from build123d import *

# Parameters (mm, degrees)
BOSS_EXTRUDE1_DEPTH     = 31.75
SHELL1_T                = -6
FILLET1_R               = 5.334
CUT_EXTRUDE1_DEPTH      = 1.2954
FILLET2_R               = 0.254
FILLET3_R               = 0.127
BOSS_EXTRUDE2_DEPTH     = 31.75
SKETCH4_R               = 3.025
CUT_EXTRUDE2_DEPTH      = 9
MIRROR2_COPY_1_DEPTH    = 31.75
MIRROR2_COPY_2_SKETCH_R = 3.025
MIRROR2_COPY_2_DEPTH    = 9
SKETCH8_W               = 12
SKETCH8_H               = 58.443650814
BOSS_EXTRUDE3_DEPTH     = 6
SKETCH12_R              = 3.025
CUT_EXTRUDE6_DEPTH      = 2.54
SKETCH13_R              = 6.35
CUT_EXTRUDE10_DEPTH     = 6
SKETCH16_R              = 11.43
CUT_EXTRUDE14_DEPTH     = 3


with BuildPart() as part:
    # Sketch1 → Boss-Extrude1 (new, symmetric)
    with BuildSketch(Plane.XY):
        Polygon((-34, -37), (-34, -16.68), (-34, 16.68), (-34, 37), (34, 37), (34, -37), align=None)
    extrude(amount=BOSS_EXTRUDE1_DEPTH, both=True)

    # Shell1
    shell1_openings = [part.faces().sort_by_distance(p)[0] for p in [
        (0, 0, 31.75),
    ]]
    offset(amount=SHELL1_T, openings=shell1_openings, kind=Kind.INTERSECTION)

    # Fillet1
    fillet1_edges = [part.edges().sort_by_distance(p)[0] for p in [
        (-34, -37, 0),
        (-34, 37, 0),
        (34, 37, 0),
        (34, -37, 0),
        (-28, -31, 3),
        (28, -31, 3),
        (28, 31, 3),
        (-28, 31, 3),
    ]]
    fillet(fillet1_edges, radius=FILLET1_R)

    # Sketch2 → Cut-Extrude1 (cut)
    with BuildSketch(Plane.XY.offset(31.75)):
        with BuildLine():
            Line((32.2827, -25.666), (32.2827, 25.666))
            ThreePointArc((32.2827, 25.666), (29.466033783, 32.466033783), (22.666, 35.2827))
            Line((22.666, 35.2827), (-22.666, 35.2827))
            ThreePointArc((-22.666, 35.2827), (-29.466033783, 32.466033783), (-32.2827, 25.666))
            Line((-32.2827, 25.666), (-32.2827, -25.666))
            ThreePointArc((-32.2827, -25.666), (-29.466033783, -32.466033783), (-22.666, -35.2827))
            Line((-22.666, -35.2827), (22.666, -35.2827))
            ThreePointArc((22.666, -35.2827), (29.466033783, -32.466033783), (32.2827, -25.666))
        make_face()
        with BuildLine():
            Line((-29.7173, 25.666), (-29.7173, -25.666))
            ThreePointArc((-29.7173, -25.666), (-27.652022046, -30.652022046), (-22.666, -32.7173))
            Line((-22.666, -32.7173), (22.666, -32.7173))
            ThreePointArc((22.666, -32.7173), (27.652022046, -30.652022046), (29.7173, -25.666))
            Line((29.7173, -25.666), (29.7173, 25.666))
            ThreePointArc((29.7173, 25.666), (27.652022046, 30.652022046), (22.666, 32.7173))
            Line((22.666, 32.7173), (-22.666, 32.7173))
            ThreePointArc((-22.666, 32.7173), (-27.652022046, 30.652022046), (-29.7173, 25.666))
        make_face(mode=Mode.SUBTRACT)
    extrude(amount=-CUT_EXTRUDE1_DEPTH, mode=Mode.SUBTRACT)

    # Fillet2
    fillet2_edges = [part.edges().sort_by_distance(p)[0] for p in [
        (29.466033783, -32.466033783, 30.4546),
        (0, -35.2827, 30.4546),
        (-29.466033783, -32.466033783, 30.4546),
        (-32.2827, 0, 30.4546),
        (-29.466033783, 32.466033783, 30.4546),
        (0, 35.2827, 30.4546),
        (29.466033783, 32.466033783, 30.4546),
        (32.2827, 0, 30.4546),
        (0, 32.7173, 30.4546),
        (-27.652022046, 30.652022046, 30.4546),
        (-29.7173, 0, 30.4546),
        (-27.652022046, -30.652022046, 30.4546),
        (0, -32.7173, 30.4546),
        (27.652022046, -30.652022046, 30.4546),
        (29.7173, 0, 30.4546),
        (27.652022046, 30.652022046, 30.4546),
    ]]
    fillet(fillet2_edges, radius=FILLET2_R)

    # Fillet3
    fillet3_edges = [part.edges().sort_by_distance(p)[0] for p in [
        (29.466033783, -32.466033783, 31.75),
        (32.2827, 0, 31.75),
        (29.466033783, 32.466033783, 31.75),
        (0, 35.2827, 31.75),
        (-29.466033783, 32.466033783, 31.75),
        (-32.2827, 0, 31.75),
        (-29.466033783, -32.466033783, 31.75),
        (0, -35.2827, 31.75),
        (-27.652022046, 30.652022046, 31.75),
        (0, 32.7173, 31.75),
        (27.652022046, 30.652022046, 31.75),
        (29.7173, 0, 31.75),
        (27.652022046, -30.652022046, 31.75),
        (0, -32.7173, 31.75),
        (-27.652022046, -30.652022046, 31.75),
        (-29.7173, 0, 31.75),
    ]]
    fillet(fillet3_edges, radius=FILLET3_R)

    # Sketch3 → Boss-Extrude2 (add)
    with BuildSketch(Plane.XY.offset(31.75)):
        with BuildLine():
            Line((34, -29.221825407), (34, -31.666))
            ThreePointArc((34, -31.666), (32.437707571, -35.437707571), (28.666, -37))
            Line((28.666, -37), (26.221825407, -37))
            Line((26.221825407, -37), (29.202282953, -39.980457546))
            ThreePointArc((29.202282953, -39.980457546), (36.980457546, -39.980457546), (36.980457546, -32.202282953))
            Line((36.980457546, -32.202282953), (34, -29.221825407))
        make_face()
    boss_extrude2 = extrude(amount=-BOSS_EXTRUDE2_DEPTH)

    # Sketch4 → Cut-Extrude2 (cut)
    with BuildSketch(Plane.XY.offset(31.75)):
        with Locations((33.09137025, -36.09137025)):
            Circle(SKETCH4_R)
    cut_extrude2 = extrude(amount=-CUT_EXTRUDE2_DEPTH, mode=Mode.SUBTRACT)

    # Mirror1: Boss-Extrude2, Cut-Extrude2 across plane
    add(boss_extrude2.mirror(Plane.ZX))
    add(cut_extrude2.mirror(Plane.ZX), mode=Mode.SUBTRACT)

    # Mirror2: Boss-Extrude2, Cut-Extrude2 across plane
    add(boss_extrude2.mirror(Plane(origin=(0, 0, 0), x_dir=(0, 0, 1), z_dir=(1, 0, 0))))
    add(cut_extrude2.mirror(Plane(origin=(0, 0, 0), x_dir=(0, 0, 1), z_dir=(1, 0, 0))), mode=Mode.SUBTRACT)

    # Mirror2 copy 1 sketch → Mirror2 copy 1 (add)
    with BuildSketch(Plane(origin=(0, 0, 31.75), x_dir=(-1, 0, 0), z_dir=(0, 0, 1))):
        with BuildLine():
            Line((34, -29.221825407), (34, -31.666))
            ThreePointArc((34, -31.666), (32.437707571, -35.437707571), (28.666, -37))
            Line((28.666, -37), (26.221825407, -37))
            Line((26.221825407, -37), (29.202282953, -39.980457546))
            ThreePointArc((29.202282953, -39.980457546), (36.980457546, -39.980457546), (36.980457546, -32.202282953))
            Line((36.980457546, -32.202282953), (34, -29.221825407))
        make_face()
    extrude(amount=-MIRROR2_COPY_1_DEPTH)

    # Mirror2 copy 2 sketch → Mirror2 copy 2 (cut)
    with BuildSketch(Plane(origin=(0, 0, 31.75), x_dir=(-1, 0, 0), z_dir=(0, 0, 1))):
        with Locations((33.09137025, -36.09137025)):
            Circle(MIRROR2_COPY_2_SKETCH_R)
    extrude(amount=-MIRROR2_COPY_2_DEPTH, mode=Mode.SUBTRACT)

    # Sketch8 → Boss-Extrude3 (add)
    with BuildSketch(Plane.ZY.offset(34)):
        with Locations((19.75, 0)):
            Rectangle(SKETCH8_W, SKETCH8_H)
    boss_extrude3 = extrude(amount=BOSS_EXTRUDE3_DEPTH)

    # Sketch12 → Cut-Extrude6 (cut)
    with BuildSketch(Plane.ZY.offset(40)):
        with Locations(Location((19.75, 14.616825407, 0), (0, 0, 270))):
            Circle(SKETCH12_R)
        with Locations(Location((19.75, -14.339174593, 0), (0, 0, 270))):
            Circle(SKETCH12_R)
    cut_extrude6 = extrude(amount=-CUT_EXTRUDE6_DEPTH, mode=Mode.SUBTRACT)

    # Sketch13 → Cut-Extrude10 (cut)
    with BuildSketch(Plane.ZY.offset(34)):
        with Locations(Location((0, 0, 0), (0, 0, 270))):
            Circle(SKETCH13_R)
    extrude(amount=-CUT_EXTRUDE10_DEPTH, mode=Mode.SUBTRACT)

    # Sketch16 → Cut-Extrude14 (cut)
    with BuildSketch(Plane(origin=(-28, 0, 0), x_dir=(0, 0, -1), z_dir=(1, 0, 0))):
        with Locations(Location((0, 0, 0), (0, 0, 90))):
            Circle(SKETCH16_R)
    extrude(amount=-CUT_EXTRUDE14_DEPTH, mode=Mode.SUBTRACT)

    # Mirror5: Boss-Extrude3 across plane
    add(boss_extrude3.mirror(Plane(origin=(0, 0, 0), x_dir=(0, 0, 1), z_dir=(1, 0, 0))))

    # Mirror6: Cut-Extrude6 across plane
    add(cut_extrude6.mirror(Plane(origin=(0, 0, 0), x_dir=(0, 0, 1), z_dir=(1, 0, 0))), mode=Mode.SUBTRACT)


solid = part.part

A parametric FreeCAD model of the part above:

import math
import FreeCAD as App
import Part
import Sketcher

V = App.Vector
Q = App.Units.Quantity


def edges_at(feature, points):
    """Names of the edges that pass closest to the given points."""
    edges = feature.Shape.Edges
    near = lambda p: min(range(len(edges)), key=lambda i: edges[i].distToShape(Part.Vertex(*p))[0])
    return sorted({f"Edge{near(p) + 1}" for p in points})


def faces_at(feature, points):
    """Names of the faces that lie closest to the given points."""
    faces = feature.Shape.Faces
    near = lambda p: min(range(len(faces)), key=lambda i: faces[i].distToShape(Part.Vertex(*p))[0])
    return sorted({f"Face{near(p) + 1}" for p in points})


def add_polygon(sketch, points):
    """Adds a closed chain of lines whose ends are joined by coincident constraints."""
    first, n = sketch.GeometryCount, len(points)
    for a, b in zip(points, points[1:] + points[:1]):
        sketch.addGeometry(Part.LineSegment(App.Vector(*a, 0), App.Vector(*b, 0)), False)
    for i in range(n):
        sketch.addConstraint(Sketcher.Constraint("Coincident", first + i, 2, first + (i + 1) % n, 1))

doc = App.newDocument("Part")
body = doc.addObject("PartDesign::Body", "Body")

# Sketch on XY plane
sketch1 = body.newObject("Sketcher::SketchObject", "Sketch")
sketch1.AttachmentSupport = (doc.getObject("XY_Plane"), [""])
sketch1.MapMode = "FlatFace"
add_polygon(sketch1, [(-34, 37), (-34, -37), (34, -37), (34, 37)])  # lines 0-3
sketch1.addConstraint([
    Sketcher.Constraint("Vertical", 0),
    Sketcher.Constraint("Horizontal", 1),
    Sketcher.Constraint("Vertical", 2),
    Sketcher.Constraint("Horizontal", 3),
    Sketcher.Constraint("Symmetric", 0, 2, 2, 2, -1, 1),
    Sketcher.Constraint("DistanceX", 1, 1, 1, 2, 68.0),
    Sketcher.Constraint("DistanceY", 0, 2, 0, 1, 74.0),
])
pad1 = body.newObject("PartDesign::Pad", "Pad")
pad1.Profile = sketch1
pad1.Length = Q("2.5 in")
pad1.Midplane = True
doc.recompute()

thickness = body.newObject("PartDesign::Thickness", "Thickness")
thickness.Base = (pad1, faces_at(pad1, [(0, 0, 31.75)]))
thickness.Value = 6
thickness.Reversed = True
thickness.Join = "Intersection"
doc.recompute()

fillet = body.newObject("PartDesign::Fillet", "Fillet")
fillet.Base = (thickness, edges_at(thickness, [
    (-34, -37, 0),
    (-34, 37, 0),
    (34, 37, 0),
    (34, -37, 0),
    (-28, -31, 3),
    (28, -31, 3),
    (28, 31, 3),
    (-28, 31, 3),
]))
fillet.Radius = Q("0.21 in")

# Sketch on XY plane
sketch2 = body.newObject("Sketcher::SketchObject", "Sketch001")
sketch2.AttachmentSupport = (doc.getObject("XY_Plane"), [""])
sketch2.MapMode = "FlatFace"
sketch2.AttachmentOffset = App.Placement(V(0, 0, 1.25 * 25.4), App.Rotation())
sketch2.addGeometry([
    Part.LineSegment(V(32, -26, 0), V(32, 26, 0)),  # 0
    Part.ArcOfCircle(Part.Circle(V(23, 26, 0), V(0, 0, 1), 10), math.radians(0), math.radians(90)),  # 1
    Part.LineSegment(V(23, 35, 0), V(-23, 35, 0)),  # 2
    Part.ArcOfCircle(Part.Circle(V(-23, 26, 0), V(0, 0, 1), 10), math.radians(90), math.radians(180)),  # 3
    Part.LineSegment(V(-32, 26, 0), V(-32, -26, 0)),  # 4
    Part.ArcOfCircle(Part.Circle(V(-23, -26, 0), V(0, 0, 1), 10), math.radians(180), math.radians(270)),  # 5
    Part.LineSegment(V(-23, -35, 0), V(23, -35, 0)),  # 6
    Part.ArcOfCircle(Part.Circle(V(23, -26, 0), V(0, 0, 1), 10), math.radians(-90), math.radians(0)),  # 7
    Part.LineSegment(V(-30, -26, 0), V(-30, 26, 0)),  # 8
    Part.ArcOfCircle(Part.Circle(V(-23, 26, 0), V(0, 0, 1), 7), math.radians(90), math.radians(180)),  # 9
    Part.LineSegment(V(-23, 33, 0), V(23, 33, 0)),  # 10
    Part.ArcOfCircle(Part.Circle(V(23, 26, 0), V(0, 0, 1), 7), math.radians(0), math.radians(90)),  # 11
    Part.LineSegment(V(30, 26, 0), V(30, -26, 0)),  # 12
    Part.ArcOfCircle(Part.Circle(V(23, -26, 0), V(0, 0, 1), 7), math.radians(-90), math.radians(0)),  # 13
    Part.LineSegment(V(23, -33, 0), V(-23, -33, 0)),  # 14
    Part.ArcOfCircle(Part.Circle(V(-23, -26, 0), V(0, 0, 1), 7), math.radians(-180), math.radians(-90)),  # 15
], False)
sketch2.addConstraint([
    Sketcher.Constraint("Tangent", 0, 2, 1, 1),
    Sketcher.Constraint("Tangent", 1, 2, 2, 1),
    Sketcher.Constraint("Tangent", 2, 2, 3, 1),
    Sketcher.Constraint("Tangent", 3, 2, 4, 1),
    Sketcher.Constraint("Tangent", 4, 2, 5, 1),
    Sketcher.Constraint("Tangent", 5, 2, 6, 1),
    Sketcher.Constraint("Tangent", 6, 2, 7, 1),
    Sketcher.Constraint("Tangent", 7, 2, 0, 1),
    Sketcher.Constraint("Tangent", 8, 2, 9, 2),
    Sketcher.Constraint("Tangent", 9, 1, 10, 1),
    Sketcher.Constraint("Tangent", 10, 2, 11, 2),
    Sketcher.Constraint("Tangent", 11, 1, 12, 1),
    Sketcher.Constraint("Tangent", 12, 2, 13, 2),
    Sketcher.Constraint("Tangent", 13, 1, 14, 1),
    Sketcher.Constraint("Tangent", 14, 2, 15, 2),
    Sketcher.Constraint("Tangent", 15, 1, 8, 1),
    Sketcher.Constraint("Vertical", 0),
    Sketcher.Constraint("Horizontal", 2),
    Sketcher.Constraint("Vertical", 4),
    Sketcher.Constraint("Horizontal", 6),
    Sketcher.Constraint("Vertical", 8),
    Sketcher.Constraint("Horizontal", 10),
    Sketcher.Constraint("Vertical", 12),
    Sketcher.Constraint("Horizontal", 14),
    Sketcher.Constraint("Coincident", 9, 3, 3, 3),
    Sketcher.Constraint("Coincident", 11, 3, 1, 3),
    Sketcher.Constraint("Coincident", 13, 3, 7, 3),
    Sketcher.Constraint("Equal", 1, 3),
    Sketcher.Constraint("Equal", 3, 5),
    Sketcher.Constraint("Equal", 5, 7),
    Sketcher.Constraint("Equal", 13, 15),
    Sketcher.Constraint("Symmetric", 1, 3, 5, 3, -1, 1),
    Sketcher.Constraint("Radius", 1, 9.6167),
    Sketcher.Constraint("Radius", 9, 7.0513),
    Sketcher.Constraint("DistanceX", 2, 2, 2, 1, 45.332),
    Sketcher.Constraint("DistanceY", 0, 1, 0, 2, 51.332),
])
pocket1 = body.newObject("PartDesign::Pocket", "Pocket")
pocket1.Profile = sketch2
pocket1.Length = Q("0.051 in")
doc.recompute()

fillet2 = body.newObject("PartDesign::Fillet", "Fillet001")
fillet2.Base = (pocket1, edges_at(pocket1, [
    (29.466, -32.466, 30.455),
    (0, -35.283, 30.455),
    (-29.466, -32.466, 30.455),
    (-32.283, 0, 30.455),
    (-29.466, 32.466, 30.455),
    (0, 35.283, 30.455),
    (29.466, 32.466, 30.455),
    (32.283, 0, 30.455),
    (0, 32.717, 30.455),
    (-27.652, 30.652, 30.455),
    (-29.717, 0, 30.455),
    (-27.652, -30.652, 30.455),
    (0, -32.717, 30.455),
    (27.652, -30.652, 30.455),
    (29.717, 0, 30.455),
    (27.652, 30.652, 30.455),
]))
fillet2.Radius = Q("0.01 in")
doc.recompute()

fillet3 = body.newObject("PartDesign::Fillet", "Fillet002")
fillet3.Base = (fillet2, edges_at(fillet2, [
    (29.466, -32.466, 31.75),
    (32.283, 0, 31.75),
    (29.466, 32.466, 31.75),
    (0, 35.283, 31.75),
    (-29.466, 32.466, 31.75),
    (-32.283, 0, 31.75),
    (-29.466, -32.466, 31.75),
    (0, -35.283, 31.75),
    (-27.652, 30.652, 31.75),
    (0, 32.717, 31.75),
    (27.652, 30.652, 31.75),
    (29.717, 0, 31.75),
    (27.652, -30.652, 31.75),
    (0, -32.717, 31.75),
    (-27.652, -30.652, 31.75),
    (-29.717, 0, 31.75),
]))
fillet3.Radius = Q("0.005 in")

# Sketch on XY plane
sketch3 = body.newObject("Sketcher::SketchObject", "Sketch002")
sketch3.AttachmentSupport = (doc.getObject("XY_Plane"), [""])
sketch3.MapMode = "FlatFace"
sketch3.AttachmentOffset = App.Placement(V(0, 0, 1.25 * 25.4), App.Rotation())
sketch3.addGeometry([
    Part.LineSegment(V(34, -29.2, 0), V(34, -31.7, 0)),  # 0
    Part.ArcOfCircle(Part.Circle(V(28.7, -31.7, 0), V(0, 0, 1), 5.3), math.radians(-90), math.radians(0)),  # 1
    Part.LineSegment(V(28.7, -37, 0), V(26.2, -37, 0)),  # 2
    Part.LineSegment(V(26.2, -37, 0), V(29.2, -40, 0)),  # 3
    Part.ArcOfCircle(Part.Circle(V(33.1, -36.1, 0), V(0, 0, 1), 5.5), math.radians(-135), math.radians(45)),  # 4
    Part.LineSegment(V(37, -32.2, 0), V(34, -29.2, 0)),  # 5
], False)
sketch3.addConstraint([
    Sketcher.Constraint("Tangent", 0, 2, 1, 2),
    Sketcher.Constraint("Tangent", 1, 1, 2, 1),
    Sketcher.Constraint("Coincident", 2, 2, 3, 1),
    Sketcher.Constraint("Tangent", 3, 2, 4, 1),
    Sketcher.Constraint("Tangent", 4, 2, 5, 1),
    Sketcher.Constraint("Coincident", 5, 2, 0, 1),
    Sketcher.Constraint("Vertical", 0),
    Sketcher.Constraint("Horizontal", 2),
    Sketcher.Constraint("Parallel", 3, 5),
    Sketcher.Constraint("Equal", 2, 0),
    Sketcher.Constraint("Equal", 3, 5),
    Sketcher.Constraint("Radius", 1, Q("0.21 in")),
    Sketcher.Constraint("Radius", 4, 5.5),
    Sketcher.Constraint("DistanceX", -1, 1, 1, 3, 28.666),
    Sketcher.Constraint("DistanceY", 1, 3, -1, 1, 31.666),
    Sketcher.Constraint("DistanceX", -1, 1, 4, 3, 33.09137),
])
pad2 = body.newObject("PartDesign::Pad", "Pad001")
pad2.Profile = sketch3
pad2.Length = Q("1.25 in")
pad2.Reversed = True

# Sketch on XY plane
sketch4 = body.newObject("Sketcher::SketchObject", "Sketch003")
sketch4.AttachmentSupport = (doc.getObject("XY_Plane"), [""])
sketch4.MapMode = "FlatFace"
sketch4.AttachmentOffset = App.Placement(V(0, 0, 1.25 * 25.4), App.Rotation())
sketch4.addGeometry(Part.Circle(V(33.1, -36.1, 0), V(0, 0, 1), 3), False)
sketch4.addConstraint([
    Sketcher.Constraint("Diameter", 0, 6.05),
    Sketcher.Constraint("DistanceX", -1, 1, 0, 3, 33.09137),
    Sketcher.Constraint("DistanceY", 0, 3, -1, 1, 36.09137),
])
pocket2 = body.newObject("PartDesign::Pocket", "Pocket001")
pocket2.Profile = sketch4
pocket2.Length = 9
doc.recompute()

mirrored = body.newObject("PartDesign::Mirrored", "Mirrored")
mirrored.Originals = [pad2, pocket2]
mirrored.MirrorPlane = (doc.getObject("XZ_Plane"), [""])
body.Tip = mirrored
doc.recompute()

mirrored2 = body.newObject("PartDesign::Mirrored", "Mirrored001")
mirrored2.Originals = [pad2, pocket2]
mirrored2.MirrorPlane = (doc.getObject("YZ_Plane"), [""])
body.Tip = mirrored2

# Sketch on XY plane
sketch5 = body.newObject("Sketcher::SketchObject", "Sketch004")
sketch5.AttachmentSupport = (doc.getObject("XY_Plane"), [""])
sketch5.MapMode = "FlatFace"
sketch5.AttachmentOffset = App.Placement(V(0, 0, 1.25 * 25.4), App.Rotation())
sketch5.addGeometry([
    Part.LineSegment(V(-34, 29.2, 0), V(-34, 31.7, 0)),  # 0
    Part.ArcOfCircle(Part.Circle(V(-28.7, 31.7, 0), V(0, 0, 1), 5.3), math.radians(90), math.radians(180)),  # 1
    Part.LineSegment(V(-28.7, 37, 0), V(-26.2, 37, 0)),  # 2
    Part.LineSegment(V(-26.2, 37, 0), V(-29.2, 40, 0)),  # 3
    Part.ArcOfCircle(Part.Circle(V(-33.1, 36.1, 0), V(0, 0, 1), 5.5), math.radians(45), math.radians(225)),  # 4
    Part.LineSegment(V(-37, 32.2, 0), V(-34, 29.2, 0)),  # 5
], False)
sketch5.addConstraint([
    Sketcher.Constraint("Tangent", 0, 2, 1, 2),
    Sketcher.Constraint("Tangent", 1, 1, 2, 1),
    Sketcher.Constraint("Coincident", 2, 2, 3, 1),
    Sketcher.Constraint("Tangent", 3, 2, 4, 1),
    Sketcher.Constraint("Tangent", 4, 2, 5, 1),
    Sketcher.Constraint("Coincident", 5, 2, 0, 1),
    Sketcher.Constraint("Vertical", 0),
    Sketcher.Constraint("Horizontal", 2),
    Sketcher.Constraint("Parallel", 3, 5),
    Sketcher.Constraint("Equal", 2, 0),
    Sketcher.Constraint("Equal", 3, 5),
    Sketcher.Constraint("Radius", 1, Q("0.21 in")),
    Sketcher.Constraint("Radius", 4, 5.5),
    Sketcher.Constraint("DistanceX", 1, 3, -1, 1, 28.666),
    Sketcher.Constraint("DistanceY", -1, 1, 1, 3, 31.666),
    Sketcher.Constraint("DistanceX", 4, 3, -1, 1, 33.09137),
])
pad3 = body.newObject("PartDesign::Pad", "Pad002")
pad3.Profile = sketch5
pad3.Length = Q("1.25 in")
pad3.Reversed = True

# Sketch on XY plane
sketch6 = body.newObject("Sketcher::SketchObject", "Sketch005")
sketch6.AttachmentSupport = (doc.getObject("XY_Plane"), [""])
sketch6.MapMode = "FlatFace"
sketch6.AttachmentOffset = App.Placement(V(0, 0, 1.25 * 25.4), App.Rotation())
sketch6.addGeometry(Part.Circle(V(-33.1, 36.1, 0), V(0, 0, 1), 3), False)
sketch6.addConstraint([
    Sketcher.Constraint("Diameter", 0, 6.05),
    Sketcher.Constraint("DistanceX", 0, 3, -1, 1, 33.09137),
    Sketcher.Constraint("DistanceY", -1, 1, 0, 3, 36.09137),
])
pocket3 = body.newObject("PartDesign::Pocket", "Pocket002")
pocket3.Profile = sketch6
pocket3.Length = 9

# Sketch on YZ plane
sketch7 = body.newObject("Sketcher::SketchObject", "Sketch006")
sketch7.AttachmentSupport = (doc.getObject("YZ_Plane"), [""])
sketch7.MapMode = "FlatFace"
sketch7.AttachmentOffset = App.Placement(V(0, 0, -34), App.Rotation())
add_polygon(sketch7, [(29, 14), (-29, 14), (-29, 26), (29, 26)])  # lines 0-3
sketch7.addConstraint([
    Sketcher.Constraint("Horizontal", 0),
    Sketcher.Constraint("Vertical", 1),
    Sketcher.Constraint("Horizontal", 2),
    Sketcher.Constraint("Vertical", 3),
    Sketcher.Constraint("DistanceY", 1, 1, 1, 2, 12.0),
    Sketcher.Constraint("DistanceX", 0, 2, 0, 1, 58.443651),
    Sketcher.Constraint("DistanceY", -1, 1, 0, 2, 13.75),
    Sketcher.Constraint("DistanceX", 0, 2, -1, 1, 29.221825),
])
pad4 = body.newObject("PartDesign::Pad", "Pad003")
pad4.Profile = sketch7
pad4.Length = 6
pad4.Reversed = True

# Sketch on YZ plane
sketch8 = body.newObject("Sketcher::SketchObject", "Sketch007")
sketch8.AttachmentSupport = (doc.getObject("YZ_Plane"), [""])
sketch8.MapMode = "FlatFace"
sketch8.AttachmentOffset = App.Placement(V(0, 0, -40), App.Rotation())
sketch8.addGeometry([
    Part.Circle(V(14.6, 19.8, 0), V(0, 0, 1), 3),
    Part.Circle(V(-14.3, 19.8, 0), V(0, 0, 1), 3),
], False)
sketch8.addConstraint([
    Sketcher.Constraint("Equal", 0, 1),
    Sketcher.Constraint("Horizontal", 0, 3, 1, 3),
    Sketcher.Constraint("Diameter", 0, 6.05),
    Sketcher.Constraint("DistanceX", 1, 3, 0, 3, Q("1.14 in")),
    Sketcher.Constraint("DistanceY", -1, 1, 0, 3, 19.75),
    Sketcher.Constraint("DistanceX", -1, 1, 0, 3, 14.616825),
])
pocket4 = body.newObject("PartDesign::Pocket", "Pocket003")
pocket4.Profile = sketch8
pocket4.Length = Q("0.1 in")
pocket4.Reversed = True

# Sketch on YZ plane
sketch9 = body.newObject("Sketcher::SketchObject", "Sketch008")
sketch9.AttachmentSupport = (doc.getObject("YZ_Plane"), [""])
sketch9.MapMode = "FlatFace"
sketch9.AttachmentOffset = App.Placement(V(0, 0, -34), App.Rotation())
sketch9.addGeometry(Part.Circle(V(0, 0, 0), V(0, 0, 1), 6), False)
sketch9.addConstraint([
    Sketcher.Constraint("Coincident", 0, 3, -1, 1),
    Sketcher.Constraint("Diameter", 0, Q("0.5 in")),
])
pocket5 = body.newObject("PartDesign::Pocket", "Pocket004")
pocket5.Profile = sketch9
pocket5.Length = 6
pocket5.Reversed = True

# Sketch on YZ plane
sketch10 = body.newObject("Sketcher::SketchObject", "Sketch009")
sketch10.AttachmentSupport = (doc.getObject("YZ_Plane"), [""])
sketch10.MapMode = "FlatFace"
sketch10.AttachmentOffset = App.Placement(V(0, 0, -28), App.Rotation())
sketch10.addGeometry(Part.Circle(V(0, 0, 0), V(0, 0, 1), 11), False)
sketch10.addConstraint([
    Sketcher.Constraint("Coincident", 0, 3, -1, 1),
    Sketcher.Constraint("Diameter", 0, Q("0.9 in")),
])
pocket6 = body.newObject("PartDesign::Pocket", "Pocket005")
pocket6.Profile = sketch10
pocket6.Length = 3
doc.recompute()

mirrored3 = body.newObject("PartDesign::Mirrored", "Mirrored002")
mirrored3.Originals = [pad4]
mirrored3.MirrorPlane = (doc.getObject("YZ_Plane"), [""])
body.Tip = mirrored3
doc.recompute()

mirrored4 = body.newObject("PartDesign::Mirrored", "Mirrored003")
mirrored4.Originals = [pocket4]
mirrored4.MirrorPlane = (doc.getObject("YZ_Plane"), [""])
body.Tip = mirrored4

doc.recompute()
